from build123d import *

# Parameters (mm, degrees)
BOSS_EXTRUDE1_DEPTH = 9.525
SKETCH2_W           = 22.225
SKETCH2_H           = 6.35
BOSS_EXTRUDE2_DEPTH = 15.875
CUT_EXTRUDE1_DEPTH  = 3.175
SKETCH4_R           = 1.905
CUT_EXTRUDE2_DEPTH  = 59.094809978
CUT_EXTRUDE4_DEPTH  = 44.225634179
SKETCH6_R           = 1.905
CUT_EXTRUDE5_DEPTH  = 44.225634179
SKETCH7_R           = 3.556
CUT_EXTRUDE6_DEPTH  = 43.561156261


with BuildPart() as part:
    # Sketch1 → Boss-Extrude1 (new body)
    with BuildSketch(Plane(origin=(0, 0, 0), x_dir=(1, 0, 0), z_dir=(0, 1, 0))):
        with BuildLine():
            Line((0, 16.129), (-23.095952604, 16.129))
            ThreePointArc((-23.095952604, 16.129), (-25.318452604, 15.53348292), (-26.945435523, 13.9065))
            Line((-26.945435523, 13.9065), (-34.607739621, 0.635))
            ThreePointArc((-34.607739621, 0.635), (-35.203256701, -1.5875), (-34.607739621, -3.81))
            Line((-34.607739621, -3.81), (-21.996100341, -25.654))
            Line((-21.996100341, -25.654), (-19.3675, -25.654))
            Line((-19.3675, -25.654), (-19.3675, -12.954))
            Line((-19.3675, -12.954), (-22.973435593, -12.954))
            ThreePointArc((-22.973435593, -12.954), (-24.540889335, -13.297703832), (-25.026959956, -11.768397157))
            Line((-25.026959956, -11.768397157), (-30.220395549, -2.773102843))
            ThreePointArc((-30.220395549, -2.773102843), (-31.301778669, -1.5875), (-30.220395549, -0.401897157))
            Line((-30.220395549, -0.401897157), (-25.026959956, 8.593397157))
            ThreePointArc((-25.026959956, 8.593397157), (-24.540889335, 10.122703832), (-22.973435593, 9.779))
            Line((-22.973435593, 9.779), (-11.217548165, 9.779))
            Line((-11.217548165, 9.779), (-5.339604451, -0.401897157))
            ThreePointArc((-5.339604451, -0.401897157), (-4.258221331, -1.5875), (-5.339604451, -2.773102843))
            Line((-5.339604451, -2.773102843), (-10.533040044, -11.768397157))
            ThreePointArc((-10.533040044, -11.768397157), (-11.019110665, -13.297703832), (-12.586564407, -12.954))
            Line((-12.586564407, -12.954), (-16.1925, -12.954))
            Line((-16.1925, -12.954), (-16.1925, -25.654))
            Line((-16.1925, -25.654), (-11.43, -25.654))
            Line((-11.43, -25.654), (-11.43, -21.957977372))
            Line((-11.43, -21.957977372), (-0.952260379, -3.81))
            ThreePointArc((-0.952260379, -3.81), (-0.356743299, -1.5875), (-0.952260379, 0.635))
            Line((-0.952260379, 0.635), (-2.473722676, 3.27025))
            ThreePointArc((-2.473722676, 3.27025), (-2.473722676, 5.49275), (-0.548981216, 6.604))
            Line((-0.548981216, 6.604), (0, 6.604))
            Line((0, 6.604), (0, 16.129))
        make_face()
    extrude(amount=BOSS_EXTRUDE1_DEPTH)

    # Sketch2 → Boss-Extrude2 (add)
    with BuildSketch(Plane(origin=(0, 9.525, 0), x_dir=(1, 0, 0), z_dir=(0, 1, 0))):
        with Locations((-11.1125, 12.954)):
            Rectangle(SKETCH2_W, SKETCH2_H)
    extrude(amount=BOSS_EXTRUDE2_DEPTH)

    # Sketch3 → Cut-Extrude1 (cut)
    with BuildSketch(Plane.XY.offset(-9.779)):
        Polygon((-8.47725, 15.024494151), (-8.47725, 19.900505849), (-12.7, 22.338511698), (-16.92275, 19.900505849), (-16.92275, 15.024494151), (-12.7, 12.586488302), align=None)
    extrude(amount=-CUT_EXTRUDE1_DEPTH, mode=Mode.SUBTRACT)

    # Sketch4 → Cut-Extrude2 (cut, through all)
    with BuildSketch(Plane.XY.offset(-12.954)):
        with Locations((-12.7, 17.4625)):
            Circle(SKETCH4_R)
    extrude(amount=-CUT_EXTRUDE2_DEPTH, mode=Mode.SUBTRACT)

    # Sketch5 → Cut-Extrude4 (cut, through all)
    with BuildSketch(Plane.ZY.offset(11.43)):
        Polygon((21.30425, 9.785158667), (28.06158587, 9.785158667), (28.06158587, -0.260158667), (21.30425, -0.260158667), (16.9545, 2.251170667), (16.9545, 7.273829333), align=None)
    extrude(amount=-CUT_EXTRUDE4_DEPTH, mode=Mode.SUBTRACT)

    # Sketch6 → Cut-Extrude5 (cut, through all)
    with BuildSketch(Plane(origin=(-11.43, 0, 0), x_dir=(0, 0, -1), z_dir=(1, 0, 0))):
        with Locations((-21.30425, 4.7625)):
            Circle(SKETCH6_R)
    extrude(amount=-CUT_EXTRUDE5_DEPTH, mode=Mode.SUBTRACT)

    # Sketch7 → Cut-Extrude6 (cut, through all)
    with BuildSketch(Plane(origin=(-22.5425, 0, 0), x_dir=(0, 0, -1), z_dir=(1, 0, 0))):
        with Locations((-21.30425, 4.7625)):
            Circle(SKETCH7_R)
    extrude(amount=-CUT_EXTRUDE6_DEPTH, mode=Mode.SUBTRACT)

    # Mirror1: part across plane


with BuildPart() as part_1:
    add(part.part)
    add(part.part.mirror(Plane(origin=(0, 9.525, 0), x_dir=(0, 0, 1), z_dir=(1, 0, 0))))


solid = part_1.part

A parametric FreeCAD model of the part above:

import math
import FreeCAD as App
import Part
import Sketcher
from FreeCAD import Vector
Q = App.Units.Quantity

doc = App.newDocument("Part")
body = doc.addObject("PartDesign::Body", "Body")

# Sketch on XZ plane
sketch1 = body.newObject("Sketcher::SketchObject", "Sketch")
sketch1.AttachmentSupport = (doc.getObject("XZ_Plane"), [""])
sketch1.MapMode = "FlatFace"
sketch1.addGeometry([
    Part.LineSegment(Vector(0, -16.129, 0), Vector(-23.095953, -16.129, 0)),  # 0
    Part.ArcOfCircle(Part.Circle(Vector(-23.095953, -11.684, 0), Vector(0, 0, 1), 4.445), math.radians(-150), math.radians(-90)),  # 1
    Part.LineSegment(Vector(-26.945436, -13.9065, 0), Vector(-34.60774, -0.635, 0)),  # 2
    Part.ArcOfCircle(Part.Circle(Vector(-30.758257, 1.5875, 0), Vector(0, 0, 1), 4.445), math.radians(150), math.radians(210)),  # 3
    Part.LineSegment(Vector(-34.60774, 3.81, 0), Vector(-21.9961, 25.654, 0)),  # 4
    Part.LineSegment(Vector(-21.9961, 25.654, 0), Vector(-19.3675, 25.654, 0)),  # 5
    Part.LineSegment(Vector(-19.3675, 25.654, 0), Vector(-19.3675, 12.954, 0)),  # 6
    Part.LineSegment(Vector(-19.3675, 12.954, 0), Vector(-22.973436, 12.954, 0)),  # 7
    Part.ArcOfCircle(Part.Circle(Vector(-23.945577, 12.266592, 0), Vector(0, 0, 1), 1.190625), math.radians(35.26439), math.radians(204.73561)),  # 8
    Part.LineSegment(Vector(-25.02696, 11.768397, 0), Vector(-30.220396, 2.773103, 0)),  # 9
    Part.ArcOfCircle(Part.Circle(Vector(-30.111154, 1.5875, 0), Vector(0, 0, 1), 1.190625), math.radians(95.26439), math.radians(264.73561)),  # 10
    Part.LineSegment(Vector(-30.220396, 0.401897, 0), Vector(-25.02696, -8.593397, 0)),  # 11
    Part.ArcOfCircle(Part.Circle(Vector(-23.945577, -9.091592, 0), Vector(0, 0, 1), 1.190625), math.radians(155.26439), math.radians(324.73561)),  # 12
    Part.LineSegment(Vector(-22.973436, -9.779, 0), Vector(-11.217548, -9.779, 0)),  # 13
    Part.LineSegment(Vector(-11.217548, -9.779, 0), Vector(-5.339604, 0.401897, 0)),  # 14
    Part.ArcOfCircle(Part.Circle(Vector(-5.448846, 1.5875, 0), Vector(0, 0, 1), 1.190625), math.radians(-84.73561), math.radians(84.73561)),  # 15
    Part.LineSegment(Vector(-5.339604, 2.773103, 0), Vector(-10.53304, 11.768397, 0)),  # 16
    Part.ArcOfCircle(Part.Circle(Vector(-11.614423, 12.266592, 0), Vector(0, 0, 1), 1.190625), math.radians(-24.73561), math.radians(144.73561)),  # 17
    Part.LineSegment(Vector(-12.586564, 12.954, 0), Vector(-16.1925, 12.954, 0)),  # 18
    Part.LineSegment(Vector(-16.1925, 12.954, 0), Vector(-16.1925, 25.654, 0)),  # 19
    Part.LineSegment(Vector(-16.1925, 25.654, 0), Vector(-11.43, 25.654, 0)),  # 20
    Part.LineSegment(Vector(-11.43, 25.654, 0), Vector(-11.43, 21.957977, 0)),  # 21
    Part.LineSegment(Vector(-11.43, 21.957977, 0), Vector(-0.95226, 3.81, 0)),  # 22
    Part.ArcOfCircle(Part.Circle(Vector(-4.801743, 1.5875, 0), Vector(0, 0, 1), 4.445), math.radians(-30), math.radians(30)),  # 23
    Part.LineSegment(Vector(-0.95226, -0.635, 0), Vector(-2.473723, -3.27025, 0)),  # 24
    Part.ArcOfCircle(Part.Circle(Vector(-0.548981, -4.3815, 0), Vector(0, 0, 1), 2.2225), math.radians(150), math.radians(270)),  # 25
    Part.LineSegment(Vector(-0.548981, -6.604, 0), Vector(0, -6.604, 0)),  # 26
    Part.LineSegment(Vector(0, -6.604, 0), Vector(0, -16.129, 0)),  # 27
], False)
sketch1.addConstraint([
    Sketcher.Constraint("Tangent", 0, 2, 1, 2),
    Sketcher.Constraint("Tangent", 1, 1, 2, 1),
    Sketcher.Constraint("Tangent", 2, 2, 3, 2),
    Sketcher.Constraint("Tangent", 3, 1, 4, 1),
    Sketcher.Constraint("Coincident", 4, 2, 5, 1),
    Sketcher.Constraint("Coincident", 5, 2, 6, 1),
    Sketcher.Constraint("Coincident", 6, 2, 7, 1),
    Sketcher.Constraint("Coincident", 7, 2, 8, 1),
    Sketcher.Constraint("Coincident", 8, 2, 9, 1),
    Sketcher.Constraint("Coincident", 9, 2, 10, 1),
    Sketcher.Constraint("Coincident", 10, 2, 11, 1),
    Sketcher.Constraint("Coincident", 11, 2, 12, 1),
    Sketcher.Constraint("Coincident", 12, 2, 13, 1),
    Sketcher.Constraint("Coincident", 13, 2, 14, 1),
    Sketcher.Constraint("Coincident", 14, 2, 15, 1),
    Sketcher.Constraint("Coincident", 15, 2, 16, 1),
    Sketcher.Constraint("Coincident", 16, 2, 17, 1),
    Sketcher.Constraint("Coincident", 17, 2, 18, 1),
    Sketcher.Constraint("Coincident", 18, 2, 19, 1),
    Sketcher.Constraint("Coincident", 19, 2, 20, 1),
    Sketcher.Constraint("Coincident", 20, 2, 21, 1),
    Sketcher.Constraint("Coincident", 21, 2, 22, 1),
    Sketcher.Constraint("Tangent", 22, 2, 23, 2),
    Sketcher.Constraint("Tangent", 23, 1, 24, 1),
    Sketcher.Constraint("Tangent", 24, 2, 25, 1),
    Sketcher.Constraint("Tangent", 25, 2, 26, 1),
    Sketcher.Constraint("Coincident", 26, 2, 27, 1),
    Sketcher.Constraint("Coincident", 27, 2, 0, 1),
    Sketcher.Constraint("Horizontal", 0),
    Sketcher.Constraint("Horizontal", 5),
    Sketcher.Constraint("Vertical", 6),
    Sketcher.Constraint("Horizontal", 7),
    Sketcher.Constraint("Horizontal", 13),
    Sketcher.Constraint("Horizontal", 18),
    Sketcher.Constraint("Vertical", 19),
    Sketcher.Constraint("Horizontal", 20),
    Sketcher.Constraint("Vertical", 21),
    Sketcher.Constraint("Horizontal", 26),
    Sketcher.Constraint("Vertical", 27),
    Sketcher.Constraint("Equal", 1, 3),
    Sketcher.Constraint("Equal", 8, 10),
    Sketcher.Constraint("Equal", 10, 12),
    Sketcher.Constraint("Equal", 12, 15),
    Sketcher.Constraint("Equal", 15, 17),
    Sketcher.Constraint("Equal", 3, 23),
    Sketcher.Constraint("PointOnObject", 26, 2, -2),
    Sketcher.Constraint("Parallel", 4, 9),
    Sketcher.Constraint("Parallel", 2, 11),
    Sketcher.Constraint("Parallel", 9, 14),
    Sketcher.Constraint("Parallel", 11, 16),
    Sketcher.Constraint("Parallel", 16, 22),
    Sketcher.Constraint("Parallel", 14, 24),
    Sketcher.Constraint("Horizontal", 3, 3, 10, 3),
    Sketcher.Constraint("Horizontal", 10, 3, 15, 3),
    Sketcher.Constraint("Horizontal", 8, 3, 17, 3),
    Sketcher.Constraint("Horizontal", 15, 3, 23, 3),
    Sketcher.Constraint("Horizontal", 10, 2, 14, 2),
    Sketcher.Constraint("Horizontal", 9, 2, 15, 2),
    Sketcher.Constraint("Horizontal", 8, 2, 16, 2),
    Sketcher.Constraint("Horizontal", 7, 2, 17, 2),
    Sketcher.Constraint("Horizontal", 5, 2, 19, 2),
    Sketcher.Constraint("Horizontal", 3, 1, 22, 2),
    Sketcher.Constraint("Vertical", 8, 3, 12, 3),
    Sketcher.Constraint("Vertical", 9, 2, 10, 2),
    Sketcher.Constraint("Vertical", 8, 2, 11, 2),
    Sketcher.Constraint("Vertical", 7, 2, 12, 2),
    Sketcher.Constraint("Equal", 7, 18),
    Sketcher.Constraint("DistanceY", 6, 2, 6, 1, Q("0.5 in")),
    Sketcher.Constraint("Angle", 2, Q("120 deg")),
    Sketcher.Constraint("Radius", 1, Q("0.175 in")),
    Sketcher.Constraint("Radius", 8, Q("0.046875 in")),
    Sketcher.Constraint("Radius", 25, Q("0.0875 in")),
    Sketcher.Constraint("DistanceX", 20, 1, 20, 2, Q("0.1875 in")),
    Sketcher.Constraint("DistanceY", 27, 2, 27, 1, Q("0.375 in")),
    Sketcher.Constraint("DistanceY", 1, 3, -1, 1, Q("0.46 in")),
    Sketcher.Constraint("DistanceY", -1, 1, 3, 1, Q("0.15 in")),
    Sketcher.Constraint("DistanceY", -1, 1, 4, 2, Q("1.01 in")),
    Sketcher.Constraint("DistanceX", 20, 2, -1, 1, Q("0.45 in")),
    Sketcher.Constraint("DistanceX", 6, 2, 18, 2, Q("0.125 in")),
    Sketcher.Constraint("DistanceX", 5, 1, 5, 2, 2.6286),
    Sketcher.Constraint("DistanceX", 26, 1, 26, 2, 0.548981),
    Sketcher.Constraint("DistanceX", 10, 3, 1, 3, 7.015201),
    Sketcher.Constraint("DistanceX", 1, 1, 12, 2, 3.972),
    Sketcher.Constraint("DistanceX", 13, 2, 15, 3, 5.768702),
    Sketcher.Constraint("Distance", 9, 10.386871),
])
pad1 = body.newObject("PartDesign::Pad", "Pad")
pad1.Profile = sketch1
pad1.Length = Q("0.375 in")
pad1.Reversed = True

# Sketch on XZ plane
sketch2 = body.newObject("Sketcher::SketchObject", "Sketch001")
sketch2.AttachmentSupport = (doc.getObject("XZ_Plane"), [""])
sketch2.MapMode = "FlatFace"
sketch2.AttachmentOffset = App.Placement(Vector(0, 0, -0.375 * 25.4), App.Rotation())
sketch2.addGeometry([
    Part.LineSegment(Vector(-22.225, -16.129, 0), Vector(-22.225, -9.779, 0)),
    Part.LineSegment(Vector(-22.225, -9.779, 0), Vector(0, -9.779, 0)),
    Part.LineSegment(Vector(0, -9.779, 0), Vector(0, -16.129, 0)),
    Part.LineSegment(Vector(0, -16.129, 0), Vector(-22.225, -16.129, 0)),
], False)
sketch2.addConstraint([
    Sketcher.Constraint("Coincident", 0, 2, 1, 1),
    Sketcher.Constraint("Coincident", 1, 2, 2, 1),
    Sketcher.Constraint("Coincident", 2, 2, 3, 1),
    Sketcher.Constraint("Coincident", 3, 2, 0, 1),
    Sketcher.Constraint("Vertical", 0),
    Sketcher.Constraint("Horizontal", 1),
    Sketcher.Constraint("Vertical", 2),
    Sketcher.Constraint("Horizontal", 3),
    Sketcher.Constraint("PointOnObject", 1, 2, -2),
    Sketcher.Constraint("DistanceY", 0, 1, 0, 2, Q("0.25 in")),
    Sketcher.Constraint("DistanceX", 1, 1, 1, 2, Q("0.875 in")),
    Sketcher.Constraint("DistanceY", 0, 2, -1, 1, Q("0.385 in")),
])
pad2 = body.newObject("PartDesign::Pad", "Pad001")
pad2.Profile = sketch2
pad2.Length = Q("0.625 in")
pad2.Reversed = True

# Sketch on XY plane
sketch3 = body.newObject("Sketcher::SketchObject", "Sketch002")
sketch3.AttachmentSupport = (doc.getObject("XY_Plane"), [""])
sketch3.MapMode = "FlatFace"
sketch3.AttachmentOffset = App.Placement(Vector(0, 0, -0.385 * 25.4), App.Rotation())
sketch3.addGeometry([
    Part.LineSegment(Vector(-8.47725, 15.024494, 0), Vector(-8.47725, 19.900506, 0)),  # 0
    Part.LineSegment(Vector(-8.47725, 19.900506, 0), Vector(-12.7, 22.338512, 0)),  # 1
    Part.LineSegment(Vector(-12.7, 22.338512, 0), Vector(-16.92275, 19.900506, 0)),  # 2
    Part.LineSegment(Vector(-16.92275, 19.900506, 0), Vector(-16.92275, 15.024494, 0)),  # 3
    Part.LineSegment(Vector(-16.92275, 15.024494, 0), Vector(-12.7, 12.586488, 0)),  # 4
    Part.LineSegment(Vector(-12.7, 12.586488, 0), Vector(-8.47725, 15.024494, 0)),  # 5
], False)
sketch3.addConstraint([
    Sketcher.Constraint("Coincident", 0, 2, 1, 1),
    Sketcher.Constraint("Coincident", 1, 2, 2, 1),
    Sketcher.Constraint("Coincident", 2, 2, 3, 1),
    Sketcher.Constraint("Coincident", 3, 2, 4, 1),
    Sketcher.Constraint("Coincident", 4, 2, 5, 1),
    Sketcher.Constraint("Coincident", 5, 2, 0, 1),
    Sketcher.Constraint("Vertical", 0),
    Sketcher.Constraint("Vertical", 3),
    Sketcher.Constraint("Parallel", 1, 4),
    Sketcher.Constraint("Parallel", 2, 5),
    Sketcher.Constraint("Horizontal", 0, 2, 2, 2),
    Sketcher.Constraint("Horizontal", 3, 2, 5, 2),
    Sketcher.Constraint("Vertical", 1, 2, 4, 2),
    Sketcher.Constraint("Angle", 1, Q("150 deg")),
    Sketcher.Constraint("DistanceX", 1, 2, -1, 1, Q("0.5 in")),
    Sketcher.Constraint("DistanceX", 2, 2, 0, 2, Q("0.3325 in")),
    Sketcher.Constraint("DistanceY", 0, 1, 0, 2, 4.876012),
    Sketcher.Constraint("DistanceY", -1, 1, 1, 2, 22.338512),
])
pocket1 = body.newObject("PartDesign::Pocket", "Pocket")
pocket1.Profile = sketch3
pocket1.Length = Q("0.125 in")

# Sketch on XY plane
sketch4 = body.newObject("Sketcher::SketchObject", "Sketch003")
sketch4.AttachmentSupport = (doc.getObject("XY_Plane"), [""])
sketch4.MapMode = "FlatFace"
sketch4.AttachmentOffset = App.Placement(Vector(0, 0, -0.51 * 25.4), App.Rotation())
sketch4.addGeometry(Part.Circle(Vector(-12.7, 17.4625, 0), Vector(0, 0, 1), 1.905), False)
sketch4.addConstraint([
    Sketcher.Constraint("Diameter", 0, Q("0.15 in")),
    Sketcher.Constraint("DistanceX", 0, 3, -1, 1, Q("0.5 in")),
    Sketcher.Constraint("DistanceY", -1, 1, 0, 3, Q("0.6875 in")),
])
pocket2 = body.newObject("PartDesign::Pocket", "Pocket001")
pocket2.Profile = sketch4
pocket2.Type = "ThroughAll"

# Sketch on YZ plane
sketch5 = body.newObject("Sketcher::SketchObject", "Sketch004")
sketch5.AttachmentSupport = (doc.getObject("YZ_Plane"), [""])
sketch5.MapMode = "FlatFace"
sketch5.AttachmentOffset = App.Placement(Vector(0, 0, -0.45 * 25.4), App.Rotation())
sketch5.addGeometry([
    Part.LineSegment(Vector(9.785159, 28.061586, 0), Vector(9.785159, 21.30425, 0)),  # 0
    Part.LineSegment(Vector(9.785159, 21.30425, 0), Vector(7.273829, 16.9545, 0)),  # 1
    Part.LineSegment(Vector(7.273829, 16.9545, 0), Vector(2.251171, 16.9545, 0)),  # 2
    Part.LineSegment(Vector(2.251171, 16.9545, 0), Vector(-0.260159, 21.30425, 0)),  # 3
    Part.LineSegment(Vector(-0.260159, 21.30425, 0), Vector(-0.260159, 28.061586, 0)),  # 4
    Part.LineSegment(Vector(-0.260159, 28.061586, 0), Vector(9.785159, 28.061586, 0)),  # 5
], False)
sketch5.addConstraint([
    Sketcher.Constraint("Coincident", 0, 2, 1, 1),
    Sketcher.Constraint("Coincident", 1, 2, 2, 1),
    Sketcher.Constraint("Coincident", 2, 2, 3, 1),
    Sketcher.Constraint("Coincident", 3, 2, 4, 1),
    Sketcher.Constraint("Coincident", 4, 2, 5, 1),
    Sketcher.Constraint("Coincident", 5, 2, 0, 1),
    Sketcher.Constraint("Vertical", 0),
    Sketcher.Constraint("Horizontal", 2),
    Sketcher.Constraint("Vertical", 4),
    Sketcher.Constraint("Horizontal", 5),
    Sketcher.Constraint("Horizontal", 0, 2, 3, 2),
    Sketcher.Constraint("Equal", 1, 3),
    Sketcher.Constraint("Angle", 1, Q("-120 deg")),
    Sketcher.Constraint("DistanceY", -1, 1, 1, 2, Q("0.6675 in")),
    Sketcher.Constraint("DistanceX", 2, 2, 2, 1, 5.022659),
    Sketcher.Constraint("Distance", 1, 5.022659),
    Sketcher.Constraint("DistanceY", 0, 2, 0, 1, 6.757336),
    Sketcher.Constraint("DistanceX", -1, 1, 0, 2, 9.785159),
])
pocket3 = body.newObject("PartDesign::Pocket", "Pocket002")
pocket3.Profile = sketch5
pocket3.Type = "ThroughAll"
pocket3.Reversed = True

# Sketch on YZ plane
sketch6 = body.newObject("Sketcher::SketchObject", "Sketch005")
sketch6.AttachmentSupport = (doc.getObject("YZ_Plane"), [""])
sketch6.MapMode = "FlatFace"
sketch6.AttachmentOffset = App.Placement(Vector(0, 0, -0.45 * 25.4), App.Rotation())
sketch6.addGeometry(Part.Circle(Vector(4.7625, 21.30425, 0), Vector(0, 0, 1), 1.905), False)
sketch6.addConstraint([
    Sketcher.Constraint("Diameter", 0, Q("0.15 in")),
    Sketcher.Constraint("DistanceX", -1, 1, 0, 3, Q("0.1875 in")),
    Sketcher.Constraint("DistanceY", -1, 1, 0, 3, 21.30425),
])
pocket4 = body.newObject("PartDesign::Pocket", "Pocket003")
pocket4.Profile = sketch6
pocket4.Type = "ThroughAll"

# Sketch on YZ plane
sketch7 = body.newObject("Sketcher::SketchObject", "Sketch006")
sketch7.AttachmentSupport = (doc.getObject("YZ_Plane"), [""])
sketch7.MapMode = "FlatFace"
sketch7.AttachmentOffset = App.Placement(Vector(0, 0, -0.8875 * 25.4), App.Rotation())
sketch7.addGeometry(Part.Circle(Vector(4.7625, 21.30425, 0), Vector(0, 0, 1), 3.556), False)
sketch7.addConstraint([
    Sketcher.Constraint("Diameter", 0, Q("0.28 in")),
    Sketcher.Constraint("DistanceX", -1, 1, 0, 3, Q("0.1875 in")),
    Sketcher.Constraint("DistanceY", -1, 1, 0, 3, 21.30425),
])
pocket5 = body.newObject("PartDesign::Pocket", "Pocket004")
pocket5.Profile = sketch7
pocket5.Type = "ThroughAll"
body2 = doc.addObject("PartDesign::Body", "Body001")
doc.recompute()

body2.BaseFeature = body
doc.recompute()

mirroring = doc.addObject("Part::Mirroring", "Mirroring")
mirroring.Source = body
mirroring.Base = Vector(0, 9.525, 0)
mirroring.Normal = Vector(1, 0, 0)
body3 = doc.addObject("PartDesign::Body", "Body002")
body3.BaseFeature = mirroring
boolean = body2.newObject("PartDesign::Boolean", "Boolean")
boolean.Type = "Fuse"
boolean.addObjects([body3])
doc.recompute()
mirroring.Visibility = False

doc.recompute()
